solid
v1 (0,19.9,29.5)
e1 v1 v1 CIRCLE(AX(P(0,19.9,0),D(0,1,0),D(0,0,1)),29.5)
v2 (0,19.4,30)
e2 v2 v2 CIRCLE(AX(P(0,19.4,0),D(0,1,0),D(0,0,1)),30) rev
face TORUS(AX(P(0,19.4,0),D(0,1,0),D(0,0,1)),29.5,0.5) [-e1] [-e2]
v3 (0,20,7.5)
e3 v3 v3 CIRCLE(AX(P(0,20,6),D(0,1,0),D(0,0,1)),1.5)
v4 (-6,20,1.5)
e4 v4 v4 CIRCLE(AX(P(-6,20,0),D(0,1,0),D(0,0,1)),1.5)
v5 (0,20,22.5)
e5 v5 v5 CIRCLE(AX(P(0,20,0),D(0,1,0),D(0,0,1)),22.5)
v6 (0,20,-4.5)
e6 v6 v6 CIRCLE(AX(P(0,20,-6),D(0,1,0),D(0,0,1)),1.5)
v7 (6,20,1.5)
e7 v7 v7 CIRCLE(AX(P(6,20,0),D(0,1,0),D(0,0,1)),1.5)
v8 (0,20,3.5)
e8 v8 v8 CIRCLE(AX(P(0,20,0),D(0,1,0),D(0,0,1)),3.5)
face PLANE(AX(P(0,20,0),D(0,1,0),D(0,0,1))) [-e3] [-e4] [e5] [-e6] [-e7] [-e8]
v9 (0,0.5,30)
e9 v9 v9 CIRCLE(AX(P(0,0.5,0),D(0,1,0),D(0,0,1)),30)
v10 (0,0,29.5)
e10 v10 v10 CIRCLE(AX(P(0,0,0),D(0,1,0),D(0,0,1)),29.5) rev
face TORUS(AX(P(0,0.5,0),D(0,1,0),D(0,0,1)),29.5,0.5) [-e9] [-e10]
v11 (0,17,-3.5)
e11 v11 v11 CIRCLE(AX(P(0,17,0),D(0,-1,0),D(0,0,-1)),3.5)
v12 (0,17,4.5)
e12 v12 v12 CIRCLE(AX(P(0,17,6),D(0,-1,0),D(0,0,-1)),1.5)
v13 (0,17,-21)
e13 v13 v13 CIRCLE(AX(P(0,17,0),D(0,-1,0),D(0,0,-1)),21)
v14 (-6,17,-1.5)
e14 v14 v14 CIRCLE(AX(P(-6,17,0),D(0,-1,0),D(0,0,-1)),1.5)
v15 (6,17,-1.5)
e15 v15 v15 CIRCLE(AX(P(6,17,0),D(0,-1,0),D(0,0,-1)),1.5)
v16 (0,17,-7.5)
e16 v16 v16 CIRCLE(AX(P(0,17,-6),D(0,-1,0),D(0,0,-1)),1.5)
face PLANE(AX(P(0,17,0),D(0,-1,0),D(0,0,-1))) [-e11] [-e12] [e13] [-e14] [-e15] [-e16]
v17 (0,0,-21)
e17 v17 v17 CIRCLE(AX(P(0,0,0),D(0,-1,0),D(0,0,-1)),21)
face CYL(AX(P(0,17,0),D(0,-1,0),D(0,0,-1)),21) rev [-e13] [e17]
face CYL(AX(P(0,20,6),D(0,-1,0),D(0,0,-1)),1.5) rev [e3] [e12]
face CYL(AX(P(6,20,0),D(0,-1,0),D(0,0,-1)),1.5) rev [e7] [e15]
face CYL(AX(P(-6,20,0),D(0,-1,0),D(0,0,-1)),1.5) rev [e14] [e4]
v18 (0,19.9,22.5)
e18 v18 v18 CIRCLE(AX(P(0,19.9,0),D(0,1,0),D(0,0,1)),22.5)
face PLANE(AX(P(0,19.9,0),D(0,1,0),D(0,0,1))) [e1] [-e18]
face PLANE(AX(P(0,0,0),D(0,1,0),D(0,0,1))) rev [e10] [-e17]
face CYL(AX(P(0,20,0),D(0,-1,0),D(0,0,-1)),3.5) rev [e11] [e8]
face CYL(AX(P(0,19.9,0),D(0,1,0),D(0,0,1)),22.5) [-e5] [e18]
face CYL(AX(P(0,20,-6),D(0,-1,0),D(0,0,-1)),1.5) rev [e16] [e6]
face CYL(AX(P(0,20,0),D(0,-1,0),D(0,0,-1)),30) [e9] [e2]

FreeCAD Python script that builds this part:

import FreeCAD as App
import Part
import Sketcher

V = App.Vector
Q = App.Units.Quantity


def edges_at(feature, points):
    """Names of the edges that pass closest to the given points."""
    edges = feature.Shape.Edges
    near = lambda p: min(range(len(edges)), key=lambda i: edges[i].distToShape(Part.Vertex(*p))[0])
    return sorted({f"Edge{near(p) + 1}" for p in points})

doc = App.newDocument("Part")
params = doc.addObject("Spreadsheet::Sheet", "Params")
for row, (alias, value) in enumerate([
    ("sketch1_diameter", "60 mm"),
    ("sketch1_diameter2", "3 mm"),
    ("sketch1_diameter3", "7 mm"),
    ("pad1_length", "20 mm"),
    ("sketch2_diameter", "42 mm"),
    ("pocket1_length", "17 mm"),
    ("sketch3_diameter", "60 mm"),
    ("sketch3_diameter2", "45 mm"),
    ("pocket2_length", "0.1 mm"),
    ("fillet_radius", "0.5 mm"),
], start=1):
    params.set(f"A{row}", alias)
    params.set(f"B{row}", "=" + value)
    params.setAlias(f"B{row}", alias)

body = doc.addObject("PartDesign::Body", "Body")

# Sketch on XZ plane
sketch1 = body.newObject("Sketcher::SketchObject", "Sketch")
sketch1.AttachmentSupport = (doc.getObject("XZ_Plane"), [""])
sketch1.MapMode = "FlatFace"
sketch1.addGeometry([
    Part.Circle(V(0, 0, 0), V(0, 0, 1), 30),  # 0
    Part.Circle(V(0, -6, 0), V(0, 0, 1), 1.5),  # 1
    Part.Circle(V(-6, 0, 0), V(0, 0, 1), 1.5),  # 2
    Part.Circle(V(6, 0, 0), V(0, 0, 1), 1.5),  # 3
    Part.Circle(V(0, 0, 0), V(0, 0, 1), 3.5),  # 4
    Part.Circle(V(0, 6, 0), V(0, 0, 1), 1.5),  # 5
], False)
sketch1.addConstraint([
    Sketcher.Constraint("Coincident", 0, 3, -1, 1),
    Sketcher.Constraint("Coincident", 4, 3, -1, 1),
    Sketcher.Constraint("Equal", 1, 2),
    Sketcher.Constraint("Equal", 2, 3),
    Sketcher.Constraint("Equal", 3, 5),
    Sketcher.Constraint("Symmetric", 2, 3, 3, 3, -1, 1),
    Sketcher.Constraint("Symmetric", 1, 3, 5, 3, -1, 1),
    Sketcher.Constraint("PointOnObject", 1, 3, -2),
    Sketcher.Constraint("PointOnObject", 2, 3, -1),
    Sketcher.Constraint("Diameter", 0, Q("60 mm")),
    Sketcher.Constraint("Diameter", 1, Q("3 mm")),
    Sketcher.Constraint("Diameter", 4, Q("7 mm")),
    Sketcher.Constraint("DistanceY", 1, 3, -1, 1, Q("6 mm")),
    Sketcher.Constraint("DistanceX", 2, 3, -1, 1, Q("6 mm")),
])
sketch1.setExpression("Constraints[9]", "Params.sketch1_diameter")
sketch1.setExpression("Constraints[10]", "Params.sketch1_diameter2")
sketch1.setExpression("Constraints[11]", "Params.sketch1_diameter3")
pad1 = body.newObject("PartDesign::Pad", "Pad")
pad1.Profile = sketch1
pad1.setExpression("Length", "Params.pad1_length")
pad1.Reversed = True

# Sketch on XZ plane
sketch2 = body.newObject("Sketcher::SketchObject", "Sketch001")
sketch2.AttachmentSupport = (doc.getObject("XZ_Plane"), [""])
sketch2.MapMode = "FlatFace"
sketch2.addGeometry(Part.Circle(V(0, 0, 0), V(0, 0, 1), 21), False)
sketch2.addConstraint([
    Sketcher.Constraint("Coincident", 0, 3, -1, 1),
    Sketcher.Constraint("Diameter", 0, Q("42 mm")),
])
sketch2.setExpression("Constraints[1]", "Params.sketch2_diameter")
pocket1 = body.newObject("PartDesign::Pocket", "Pocket")
pocket1.Profile = sketch2
pocket1.setExpression("Length", "Params.pocket1_length")

# Sketch on XZ plane
sketch3 = body.newObject("Sketcher::SketchObject", "Sketch002")
sketch3.AttachmentSupport = (doc.getObject("XZ_Plane"), [""])
sketch3.MapMode = "FlatFace"
sketch3.AttachmentOffset = App.Placement(V(0, 0, -19.9), App.Rotation())
sketch3.addGeometry([
    Part.Circle(V(0, 0, 0), V(0, 0, 1), 30),
    Part.Circle(V(0, 0, 0), V(0, 0, 1), 22.5),
], False)
sketch3.addConstraint([
    Sketcher.Constraint("Coincident", 0, 3, -1, 1),
    Sketcher.Constraint("Coincident", 1, 3, -1, 1),
    Sketcher.Constraint("Diameter", 0, Q("60 mm")),
    Sketcher.Constraint("Diameter", 1, Q("45 mm")),
])
sketch3.setExpression("Constraints[2]", "Params.sketch3_diameter")
sketch3.setExpression("Constraints[3]", "Params.sketch3_diameter2")
pocket2 = body.newObject("PartDesign::Pocket", "Pocket001")
pocket2.Profile = sketch3
pocket2.setExpression("Length", "Params.pocket2_length")
doc.recompute()

fillet = body.newObject("PartDesign::Fillet", "Fillet")
fillet.Base = (pocket2, edges_at(pocket2, [(0, 0, -30), (0, 19.9, -30)]))
fillet.setExpression("Radius", "Params.fillet_radius")

doc.recompute()
